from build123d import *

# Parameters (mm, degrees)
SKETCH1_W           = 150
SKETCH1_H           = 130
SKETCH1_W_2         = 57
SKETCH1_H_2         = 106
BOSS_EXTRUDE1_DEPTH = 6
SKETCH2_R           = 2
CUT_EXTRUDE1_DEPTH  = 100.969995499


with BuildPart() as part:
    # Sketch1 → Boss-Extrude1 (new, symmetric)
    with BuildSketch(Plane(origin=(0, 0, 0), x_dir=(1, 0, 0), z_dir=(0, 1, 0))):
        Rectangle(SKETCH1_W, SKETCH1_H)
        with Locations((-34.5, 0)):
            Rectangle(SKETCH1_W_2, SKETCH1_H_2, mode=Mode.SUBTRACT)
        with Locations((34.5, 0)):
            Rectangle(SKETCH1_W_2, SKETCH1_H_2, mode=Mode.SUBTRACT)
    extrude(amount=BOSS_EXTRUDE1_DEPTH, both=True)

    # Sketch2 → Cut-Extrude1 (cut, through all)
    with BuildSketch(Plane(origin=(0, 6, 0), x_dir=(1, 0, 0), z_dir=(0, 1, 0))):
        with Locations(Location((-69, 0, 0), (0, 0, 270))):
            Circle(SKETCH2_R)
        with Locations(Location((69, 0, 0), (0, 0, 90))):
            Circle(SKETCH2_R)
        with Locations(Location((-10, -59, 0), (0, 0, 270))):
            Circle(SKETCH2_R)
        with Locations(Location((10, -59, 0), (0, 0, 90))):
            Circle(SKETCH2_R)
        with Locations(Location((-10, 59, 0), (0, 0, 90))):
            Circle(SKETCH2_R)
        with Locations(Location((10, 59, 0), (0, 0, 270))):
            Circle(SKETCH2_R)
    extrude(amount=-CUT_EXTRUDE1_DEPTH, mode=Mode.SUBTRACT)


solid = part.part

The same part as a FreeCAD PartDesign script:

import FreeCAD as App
import Part
import Sketcher

V = App.Vector
Q = App.Units.Quantity


def add_polygon(sketch, points):
    """Adds a closed chain of lines whose ends are joined by coincident constraints."""
    first, n = sketch.GeometryCount, len(points)
    for a, b in zip(points, points[1:] + points[:1]):
        sketch.addGeometry(Part.LineSegment(App.Vector(*a, 0), App.Vector(*b, 0)), False)
    for i in range(n):
        sketch.addConstraint(Sketcher.Constraint("Coincident", first + i, 2, first + (i + 1) % n, 1))

doc = App.newDocument("Part")
body = doc.addObject("PartDesign::Body", "Body")

# Sketch on XZ plane
sketch1 = doc.addObject("Sketcher::SketchObject", "Sketch")
body.addObject(sketch1)
sketch1.AttachmentSupport = (doc.XZ_Plane, [""])
sketch1.MapMode = "FlatFace"
add_polygon(sketch1, [(-75, -65), (-75, 65), (75, 65), (75, -65)])  # lines 0-3
add_polygon(sketch1, [(-6, 53), (-63, 53), (-63, -53), (-6, -53)])  # lines 4-7
add_polygon(sketch1, [(63, 53), (6, 53), (6, -53), (63, -53)])  # lines 8-11
sketch1.addConstraint([
    Sketcher.Constraint("Vertical", 0),
    Sketcher.Constraint("Horizontal", 1),
    Sketcher.Constraint("Vertical", 2),
    Sketcher.Constraint("Horizontal", 3),
    Sketcher.Constraint("Horizontal", 4),
    Sketcher.Constraint("Vertical", 5),
    Sketcher.Constraint("Horizontal", 6),
    Sketcher.Constraint("Vertical", 7),
    Sketcher.Constraint("Horizontal", 8),
    Sketcher.Constraint("Vertical", 9),
    Sketcher.Constraint("Horizontal", 10),
    Sketcher.Constraint("Vertical", 11),
    Sketcher.Constraint("Symmetric", 0, 2, 2, 2, -1, 1),
    Sketcher.Constraint("Symmetric", 6, 2, 8, 2, -1, 1),
    Sketcher.Constraint("Symmetric", 4, 2, 10, 2, -1, 1),
    Sketcher.Constraint("Horizontal", 7, 2, 8, 2),
    Sketcher.Constraint("DistanceX", 1, 1, 1, 2, Q("150 mm")),
    Sketcher.Constraint("DistanceX", 4, 2, 4, 1, Q("57 mm")),
    Sketcher.Constraint("DistanceY", 0, 1, 0, 2, Q("130 mm")),
    Sketcher.Constraint("DistanceY", 5, 2, 5, 1, Q("106 mm")),
    Sketcher.Constraint("DistanceX", 4, 2, -1, 1, Q("63 mm")),
])
pad1 = doc.addObject("PartDesign::Pad", "Pad")
body.addObject(pad1)
pad1.Profile = sketch1
pad1.Length = 12
pad1.Midplane = True

# Sketch on XZ plane
sketch2 = doc.addObject("Sketcher::SketchObject", "Sketch001")
body.addObject(sketch2)
sketch2.AttachmentSupport = (doc.XZ_Plane, [""])
sketch2.MapMode = "FlatFace"
sketch2.AttachmentOffset = App.Placement(V(0, 0, -6), App.Rotation())
sketch2.addGeometry([
    Part.Circle(V(-69, 0, 0), V(0, 0, 1), 2),  # 0
    Part.Circle(V(69, 0, 0), V(0, 0, 1), 2),  # 1
    Part.Circle(V(-10, 59, 0), V(0, 0, 1), 2),  # 2
    Part.Circle(V(10, 59, 0), V(0, 0, 1), 2),  # 3
    Part.Circle(V(-10, -59, 0), V(0, 0, 1), 2),  # 4
    Part.Circle(V(10, -59, 0), V(0, 0, 1), 2),  # 5
], False)
sketch2.addConstraint([
    Sketcher.Constraint("Equal", 0, 1),
    Sketcher.Constraint("Equal", 1, 2),
    Sketcher.Constraint("Equal", 2, 3),
    Sketcher.Constraint("Equal", 3, 4),
    Sketcher.Constraint("Equal", 4, 5),
    Sketcher.Constraint("Symmetric", 0, 3, 1, 3, -1, 1),
    Sketcher.Constraint("Symmetric", 3, 3, 4, 3, -1, 1),
    Sketcher.Constraint("Symmetric", 2, 3, 5, 3, -1, 1),
    Sketcher.Constraint("Symmetric", 2, 3, 3, 3, -2),
    Sketcher.Constraint("PointOnObject", 0, 3, -1),
    Sketcher.Constraint("Diameter", 0, Q("4 mm")),
    Sketcher.Constraint("DistanceX", 0, 3, -1, 1, Q("69 mm")),
    Sketcher.Constraint("DistanceX", 2, 3, -1, 1, Q("10 mm")),
    Sketcher.Constraint("DistanceY", -1, 1, 2, 3, Q("59 mm")),
])
pocket1 = doc.addObject("PartDesign::Pocket", "Pocket")
body.addObject(pocket1)
pocket1.Profile = sketch2
pocket1.Type = "ThroughAll"
pocket1.Reversed = True

doc.recompute()
